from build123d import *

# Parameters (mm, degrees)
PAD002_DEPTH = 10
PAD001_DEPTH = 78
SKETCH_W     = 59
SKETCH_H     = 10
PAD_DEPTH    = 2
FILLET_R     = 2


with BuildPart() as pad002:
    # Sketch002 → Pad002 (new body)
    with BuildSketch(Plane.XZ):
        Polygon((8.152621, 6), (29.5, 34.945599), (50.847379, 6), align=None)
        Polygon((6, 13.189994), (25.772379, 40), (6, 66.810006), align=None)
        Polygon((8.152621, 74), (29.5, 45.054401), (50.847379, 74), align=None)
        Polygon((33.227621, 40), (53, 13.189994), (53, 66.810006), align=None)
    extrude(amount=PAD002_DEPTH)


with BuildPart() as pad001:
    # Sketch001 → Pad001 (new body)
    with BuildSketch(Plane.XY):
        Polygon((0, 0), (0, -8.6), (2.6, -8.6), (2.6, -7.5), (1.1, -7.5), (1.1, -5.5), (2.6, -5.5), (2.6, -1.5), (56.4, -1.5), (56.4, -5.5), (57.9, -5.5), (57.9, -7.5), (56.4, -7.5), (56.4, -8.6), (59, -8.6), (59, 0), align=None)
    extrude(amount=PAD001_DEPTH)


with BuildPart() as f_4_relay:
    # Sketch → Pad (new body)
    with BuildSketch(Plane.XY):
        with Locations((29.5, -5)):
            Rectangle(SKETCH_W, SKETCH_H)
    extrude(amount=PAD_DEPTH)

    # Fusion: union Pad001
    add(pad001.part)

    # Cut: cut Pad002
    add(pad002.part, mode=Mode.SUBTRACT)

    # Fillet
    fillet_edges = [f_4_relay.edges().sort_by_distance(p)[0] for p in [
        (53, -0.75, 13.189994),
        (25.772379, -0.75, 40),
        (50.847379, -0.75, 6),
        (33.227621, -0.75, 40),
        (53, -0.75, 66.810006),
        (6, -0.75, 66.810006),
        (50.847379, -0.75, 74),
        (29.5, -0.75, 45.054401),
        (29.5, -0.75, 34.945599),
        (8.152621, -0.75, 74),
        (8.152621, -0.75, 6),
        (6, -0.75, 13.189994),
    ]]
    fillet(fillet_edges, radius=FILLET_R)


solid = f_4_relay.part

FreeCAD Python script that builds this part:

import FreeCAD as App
import Part
import Sketcher


def edges_at(feature, points):
    """Names of the edges that pass closest to the given points."""
    edges = feature.Shape.Edges
    near = lambda p: min(range(len(edges)), key=lambda i: edges[i].distToShape(Part.Vertex(*p))[0])
    return sorted({f"Edge{near(p) + 1}" for p in points})

doc = App.newDocument("Part")
body = doc.addObject("PartDesign::Body", "Body")
body.AllowCompound = True

# Sketch on XZ plane
sketch1 = doc.addObject("Sketcher::SketchObject", "Sketch")
body.addObject(sketch1)
sketch1.AttachmentSupport = (doc.XZ_Plane, [""])
sketch1.MapMode = "FlatFace"
sketch1.addGeometry(Part.LineSegment(App.Vector(30, 35, 0), App.Vector(8, 6, 0)), False)
sketch1.addGeometry(Part.LineSegment(App.Vector(8, 6, 0), App.Vector(51, 6, 0)), False)
sketch1.addGeometry(Part.LineSegment(App.Vector(51, 6, 0), App.Vector(30, 35, 0)), False)
sketch1.addGeometry(Part.LineSegment(App.Vector(6, 13, 0), App.Vector(26, 40, 0)), False)
sketch1.addGeometry(Part.LineSegment(App.Vector(26, 40, 0), App.Vector(6, 67, 0)), False)
sketch1.addGeometry(Part.LineSegment(App.Vector(6, 67, 0), App.Vector(6, 13, 0)), False)
sketch1.addGeometry(Part.LineSegment(App.Vector(8, 74, 0), App.Vector(30, 45, 0)), False)
sketch1.addGeometry(Part.LineSegment(App.Vector(30, 45, 0), App.Vector(51, 74, 0)), False)
sketch1.addGeometry(Part.LineSegment(App.Vector(51, 74, 0), App.Vector(8, 74, 0)), False)
sketch1.addGeometry(Part.LineSegment(App.Vector(33, 40, 0), App.Vector(53, 13, 0)), False)
sketch1.addGeometry(Part.LineSegment(App.Vector(53, 13, 0), App.Vector(53, 67, 0)), False)
sketch1.addGeometry(Part.LineSegment(App.Vector(53, 67, 0), App.Vector(33, 40, 0)), False)
sketch1.addConstraint(Sketcher.Constraint("Coincident", 0, 2, 1, 1))
sketch1.addConstraint(Sketcher.Constraint("Coincident", 1, 2, 2, 1))
sketch1.addConstraint(Sketcher.Constraint("Coincident", 2, 2, 0, 1))
sketch1.addConstraint(Sketcher.Constraint("Coincident", 3, 2, 4, 1))
sketch1.addConstraint(Sketcher.Constraint("Coincident", 4, 2, 5, 1))
sketch1.addConstraint(Sketcher.Constraint("Coincident", 5, 2, 3, 1))
sketch1.addConstraint(Sketcher.Constraint("Coincident", 6, 2, 7, 1))
sketch1.addConstraint(Sketcher.Constraint("Coincident", 7, 2, 8, 1))
sketch1.addConstraint(Sketcher.Constraint("Coincident", 8, 2, 6, 1))
sketch1.addConstraint(Sketcher.Constraint("Coincident", 9, 2, 10, 1))
sketch1.addConstraint(Sketcher.Constraint("Coincident", 10, 2, 11, 1))
sketch1.addConstraint(Sketcher.Constraint("Coincident", 11, 2, 9, 1))
sketch1.addConstraint(Sketcher.Constraint("Horizontal", 1))
sketch1.addConstraint(Sketcher.Constraint("Vertical", 5))
sketch1.addConstraint(Sketcher.Constraint("Horizontal", 8))
sketch1.addConstraint(Sketcher.Constraint("Vertical", 10))
sketch1.addConstraint(Sketcher.Constraint("Parallel", 0, 3))
sketch1.addConstraint(Sketcher.Constraint("Parallel", 2, 4))
sketch1.addConstraint(Sketcher.Constraint("Parallel", 4, 6))
sketch1.addConstraint(Sketcher.Constraint("Parallel", 3, 7))
sketch1.addConstraint(Sketcher.Constraint("Parallel", 6, 9))
sketch1.addConstraint(Sketcher.Constraint("Parallel", 7, 11))
sketch1.addConstraint(Sketcher.Constraint("Horizontal", 5, 2, 9, 2))
sketch1.addConstraint(Sketcher.Constraint("Horizontal", 4, 2, 10, 2))
sketch1.addConstraint(Sketcher.Constraint("Horizontal", 3, 2, 11, 2))
sketch1.addConstraint(Sketcher.Constraint("Vertical", 2, 2, 6, 2))
sketch1.addConstraint(Sketcher.Constraint("Vertical", 1, 2, 7, 2))
sketch1.addConstraint(Sketcher.Constraint("DistanceY", -1, 1, 0, 2, 6.0))
sketch1.addConstraint(Sketcher.Constraint("DistanceY", -1, 1, 3, 2, 40.0))
sketch1.addConstraint(Sketcher.Constraint("DistanceX", -1, 1, 4, 2, 6.0))
sketch1.addConstraint(Sketcher.Constraint("DistanceY", -1, 1, 7, 2, 74.0))
sketch1.addConstraint(Sketcher.Constraint("DistanceX", -1, 1, 9, 2, 53.0))
sketch1.addConstraint(Sketcher.Constraint("DistanceX", -1, 1, 2, 2, 29.5))
sketch1.addConstraint(Sketcher.Constraint("DistanceX", 3, 2, 1, 2, 25.075))
sketch1.addConstraint(Sketcher.Constraint("DistanceY", -1, 1, 2, 2, 34.945599))
sketch1.addConstraint(Sketcher.Constraint("Distance", 0, 35.966071))
pad1 = doc.addObject("PartDesign::Pad", "Pad")
body.addObject(pad1)
pad1.Profile = sketch1
pad1.Length = 10
body2 = doc.addObject("PartDesign::Body", "Body001")

# Sketch on XY plane
sketch2 = doc.addObject("Sketcher::SketchObject", "Sketch001")
body2.addObject(sketch2)
sketch2.AttachmentSupport = (doc.getObject("XY_Plane001"), [""])
sketch2.MapMode = "FlatFace"
sketch2.addGeometry(Part.LineSegment(App.Vector(0, 0, 0), App.Vector(0, -8.6, 0)), False)
sketch2.addGeometry(Part.LineSegment(App.Vector(0, -8.6, 0), App.Vector(2.6, -8.6, 0)), False)
sketch2.addGeometry(Part.LineSegment(App.Vector(2.6, -8.6, 0), App.Vector(2.6, -7.5, 0)), False)
sketch2.addGeometry(Part.LineSegment(App.Vector(2.6, -7.5, 0), App.Vector(1.1, -7.5, 0)), False)
sketch2.addGeometry(Part.LineSegment(App.Vector(1.1, -7.5, 0), App.Vector(1.1, -5.5, 0)), False)
sketch2.addGeometry(Part.LineSegment(App.Vector(1.1, -5.5, 0), App.Vector(2.6, -5.5, 0)), False)
sketch2.addGeometry(Part.LineSegment(App.Vector(2.6, -5.5, 0), App.Vector(2.6, -1.5, 0)), False)
sketch2.addGeometry(Part.LineSegment(App.Vector(2.6, -1.5, 0), App.Vector(56.4, -1.5, 0)), False)
sketch2.addGeometry(Part.LineSegment(App.Vector(56.4, -1.5, 0), App.Vector(56.4, -5.5, 0)), False)
sketch2.addGeometry(Part.LineSegment(App.Vector(56.4, -5.5, 0), App.Vector(57.9, -5.5, 0)), False)
sketch2.addGeometry(Part.LineSegment(App.Vector(57.9, -5.5, 0), App.Vector(57.9, -7.5, 0)), False)
sketch2.addGeometry(Part.LineSegment(App.Vector(57.9, -7.5, 0), App.Vector(56.4, -7.5, 0)), False)
sketch2.addGeometry(Part.LineSegment(App.Vector(56.4, -7.5, 0), App.Vector(56.4, -8.6, 0)), False)
sketch2.addGeometry(Part.LineSegment(App.Vector(56.4, -8.6, 0), App.Vector(59, -8.6, 0)), False)
sketch2.addGeometry(Part.LineSegment(App.Vector(59, -8.6, 0), App.Vector(59, 0, 0)), False)
sketch2.addGeometry(Part.LineSegment(App.Vector(59, 0, 0), App.Vector(0, 0, 0)), False)
sketch2.addConstraint(Sketcher.Constraint("Coincident", 0, 2, 1, 1))
sketch2.addConstraint(Sketcher.Constraint("Coincident", 1, 2, 2, 1))
sketch2.addConstraint(Sketcher.Constraint("Coincident", 2, 2, 3, 1))
sketch2.addConstraint(Sketcher.Constraint("Coincident", 3, 2, 4, 1))
sketch2.addConstraint(Sketcher.Constraint("Coincident", 4, 2, 5, 1))
sketch2.addConstraint(Sketcher.Constraint("Coincident", 5, 2, 6, 1))
sketch2.addConstraint(Sketcher.Constraint("Coincident", 6, 2, 7, 1))
sketch2.addConstraint(Sketcher.Constraint("Coincident", 7, 2, 8, 1))
sketch2.addConstraint(Sketcher.Constraint("Coincident", 8, 2, 9, 1))
sketch2.addConstraint(Sketcher.Constraint("Coincident", 9, 2, 10, 1))
sketch2.addConstraint(Sketcher.Constraint("Coincident", 10, 2, 11, 1))
sketch2.addConstraint(Sketcher.Constraint("Coincident", 11, 2, 12, 1))
sketch2.addConstraint(Sketcher.Constraint("Coincident", 12, 2, 13, 1))
sketch2.addConstraint(Sketcher.Constraint("Coincident", 13, 2, 14, 1))
sketch2.addConstraint(Sketcher.Constraint("Coincident", 14, 2, 15, 1))
sketch2.addConstraint(Sketcher.Constraint("Coincident", 15, 2, 0, 1))
sketch2.addConstraint(Sketcher.Constraint("Vertical", 0))
sketch2.addConstraint(Sketcher.Constraint("Horizontal", 1))
sketch2.addConstraint(Sketcher.Constraint("Vertical", 2))
sketch2.addConstraint(Sketcher.Constraint("Horizontal", 3))
sketch2.addConstraint(Sketcher.Constraint("Vertical", 4))
sketch2.addConstraint(Sketcher.Constraint("Horizontal", 5))
sketch2.addConstraint(Sketcher.Constraint("Vertical", 6))
sketch2.addConstraint(Sketcher.Constraint("Horizontal", 7))
sketch2.addConstraint(Sketcher.Constraint("Vertical", 8))
sketch2.addConstraint(Sketcher.Constraint("Horizontal", 9))
sketch2.addConstraint(Sketcher.Constraint("Vertical", 10))
sketch2.addConstraint(Sketcher.Constraint("Horizontal", 11))
sketch2.addConstraint(Sketcher.Constraint("Vertical", 12))
sketch2.addConstraint(Sketcher.Constraint("Horizontal", 13))
sketch2.addConstraint(Sketcher.Constraint("Vertical", 14))
sketch2.addConstraint(Sketcher.Constraint("Horizontal", 15))
sketch2.addConstraint(Sketcher.Constraint("Coincident", 15, 2, -1, 1))
sketch2.addConstraint(Sketcher.Constraint("Horizontal", 5, 2, 8, 2))
sketch2.addConstraint(Sketcher.Constraint("Horizontal", 3, 2, 10, 2))
sketch2.addConstraint(Sketcher.Constraint("Horizontal", 1, 2, 12, 2))
sketch2.addConstraint(Sketcher.Constraint("Vertical", 2, 2, 5, 2))
sketch2.addConstraint(Sketcher.Constraint("Vertical", 8, 2, 11, 2))
sketch2.addConstraint(Sketcher.Constraint("Equal", 5, 9))
sketch2.addConstraint(Sketcher.Constraint("Equal", 1, 13))
sketch2.addConstraint(Sketcher.Constraint("DistanceX", 15, 2, 15, 1, 59.0))
sketch2.addConstraint(Sketcher.Constraint("DistanceY", 4, 1, 4, 2, 2.0))
sketch2.addConstraint(Sketcher.Constraint("DistanceY", 6, 1, 6, 2, 4.0))
sketch2.addConstraint(Sketcher.Constraint("DistanceX", 1, 1, 1, 2, 2.6))
sketch2.addConstraint(Sketcher.Constraint("DistanceX", 3, 2, 3, 1, 1.5))
sketch2.addConstraint(Sketcher.Constraint("DistanceY", 0, 2, 0, 1, 8.6))
sketch2.addConstraint(Sketcher.Constraint("DistanceY", 2, 1, 2, 2, 1.1))
pad2 = doc.addObject("PartDesign::Pad", "Pad001")
body2.addObject(pad2)
pad2.Profile = sketch2
pad2.Length = 78
body3 = doc.addObject("PartDesign::Body", "Body002")

# Sketch on XY plane
sketch3 = doc.addObject("Sketcher::SketchObject", "Sketch002")
body3.addObject(sketch3)
sketch3.AttachmentSupport = (doc.getObject("XY_Plane002"), [""])
sketch3.MapMode = "FlatFace"
sketch3.addGeometry(Part.LineSegment(App.Vector(0, 0, 0), App.Vector(0, -10, 0)), False)
sketch3.addGeometry(Part.LineSegment(App.Vector(0, -10, 0), App.Vector(59, -10, 0)), False)
sketch3.addGeometry(Part.LineSegment(App.Vector(59, -10, 0), App.Vector(59, 0, 0)), False)
sketch3.addGeometry(Part.LineSegment(App.Vector(59, 0, 0), App.Vector(0, 0, 0)), False)
sketch3.addConstraint(Sketcher.Constraint("Coincident", 0, 2, 1, 1))
sketch3.addConstraint(Sketcher.Constraint("Coincident", 1, 2, 2, 1))
sketch3.addConstraint(Sketcher.Constraint("Coincident", 2, 2, 3, 1))
sketch3.addConstraint(Sketcher.Constraint("Coincident", 3, 2, 0, 1))
sketch3.addConstraint(Sketcher.Constraint("Vertical", 0))
sketch3.addConstraint(Sketcher.Constraint("Horizontal", 1))
sketch3.addConstraint(Sketcher.Constraint("Vertical", 2))
sketch3.addConstraint(Sketcher.Constraint("Horizontal", 3))
sketch3.addConstraint(Sketcher.Constraint("Coincident", 3, 2, -1, 1))
sketch3.addConstraint(Sketcher.Constraint("DistanceX", 1, 1, 1, 2, 59.0))
sketch3.addConstraint(Sketcher.Constraint("DistanceY", 0, 2, 0, 1, 10.0))
pad3 = doc.addObject("PartDesign::Pad", "Pad002")
body3.addObject(pad3)
pad3.Profile = sketch3
pad3.Length = 2
doc.recompute()

boolean = doc.addObject("PartDesign::Boolean", "Boolean")
body3.addObject(boolean)
boolean.Type = "Fuse"
boolean.addObjects([body2])
doc.recompute()

boolean2 = doc.addObject("PartDesign::Boolean", "Boolean001")
body3.addObject(boolean2)
boolean2.Type = "Cut"
boolean2.addObjects([body])
doc.recompute()

fillet = doc.addObject("PartDesign::Fillet", "Fillet")
body3.addObject(fillet)
fillet.Base = (boolean2, edges_at(boolean2, [
    (53, -0.75, 13.19),
    (25.772, -0.75, 40),
    (50.847, -0.75, 6),
    (33.228, -0.75, 40),
    (53, -0.75, 66.81),
    (6, -0.75, 66.81),
    (50.847, -0.75, 74),
    (29.5, -0.75, 45.054),
    (29.5, -0.75, 34.946),
    (8.153, -0.75, 74),
    (8.153, -0.75, 6),
    (6, -0.75, 13.19),
]))
fillet.Radius = 2

doc.recompute()
